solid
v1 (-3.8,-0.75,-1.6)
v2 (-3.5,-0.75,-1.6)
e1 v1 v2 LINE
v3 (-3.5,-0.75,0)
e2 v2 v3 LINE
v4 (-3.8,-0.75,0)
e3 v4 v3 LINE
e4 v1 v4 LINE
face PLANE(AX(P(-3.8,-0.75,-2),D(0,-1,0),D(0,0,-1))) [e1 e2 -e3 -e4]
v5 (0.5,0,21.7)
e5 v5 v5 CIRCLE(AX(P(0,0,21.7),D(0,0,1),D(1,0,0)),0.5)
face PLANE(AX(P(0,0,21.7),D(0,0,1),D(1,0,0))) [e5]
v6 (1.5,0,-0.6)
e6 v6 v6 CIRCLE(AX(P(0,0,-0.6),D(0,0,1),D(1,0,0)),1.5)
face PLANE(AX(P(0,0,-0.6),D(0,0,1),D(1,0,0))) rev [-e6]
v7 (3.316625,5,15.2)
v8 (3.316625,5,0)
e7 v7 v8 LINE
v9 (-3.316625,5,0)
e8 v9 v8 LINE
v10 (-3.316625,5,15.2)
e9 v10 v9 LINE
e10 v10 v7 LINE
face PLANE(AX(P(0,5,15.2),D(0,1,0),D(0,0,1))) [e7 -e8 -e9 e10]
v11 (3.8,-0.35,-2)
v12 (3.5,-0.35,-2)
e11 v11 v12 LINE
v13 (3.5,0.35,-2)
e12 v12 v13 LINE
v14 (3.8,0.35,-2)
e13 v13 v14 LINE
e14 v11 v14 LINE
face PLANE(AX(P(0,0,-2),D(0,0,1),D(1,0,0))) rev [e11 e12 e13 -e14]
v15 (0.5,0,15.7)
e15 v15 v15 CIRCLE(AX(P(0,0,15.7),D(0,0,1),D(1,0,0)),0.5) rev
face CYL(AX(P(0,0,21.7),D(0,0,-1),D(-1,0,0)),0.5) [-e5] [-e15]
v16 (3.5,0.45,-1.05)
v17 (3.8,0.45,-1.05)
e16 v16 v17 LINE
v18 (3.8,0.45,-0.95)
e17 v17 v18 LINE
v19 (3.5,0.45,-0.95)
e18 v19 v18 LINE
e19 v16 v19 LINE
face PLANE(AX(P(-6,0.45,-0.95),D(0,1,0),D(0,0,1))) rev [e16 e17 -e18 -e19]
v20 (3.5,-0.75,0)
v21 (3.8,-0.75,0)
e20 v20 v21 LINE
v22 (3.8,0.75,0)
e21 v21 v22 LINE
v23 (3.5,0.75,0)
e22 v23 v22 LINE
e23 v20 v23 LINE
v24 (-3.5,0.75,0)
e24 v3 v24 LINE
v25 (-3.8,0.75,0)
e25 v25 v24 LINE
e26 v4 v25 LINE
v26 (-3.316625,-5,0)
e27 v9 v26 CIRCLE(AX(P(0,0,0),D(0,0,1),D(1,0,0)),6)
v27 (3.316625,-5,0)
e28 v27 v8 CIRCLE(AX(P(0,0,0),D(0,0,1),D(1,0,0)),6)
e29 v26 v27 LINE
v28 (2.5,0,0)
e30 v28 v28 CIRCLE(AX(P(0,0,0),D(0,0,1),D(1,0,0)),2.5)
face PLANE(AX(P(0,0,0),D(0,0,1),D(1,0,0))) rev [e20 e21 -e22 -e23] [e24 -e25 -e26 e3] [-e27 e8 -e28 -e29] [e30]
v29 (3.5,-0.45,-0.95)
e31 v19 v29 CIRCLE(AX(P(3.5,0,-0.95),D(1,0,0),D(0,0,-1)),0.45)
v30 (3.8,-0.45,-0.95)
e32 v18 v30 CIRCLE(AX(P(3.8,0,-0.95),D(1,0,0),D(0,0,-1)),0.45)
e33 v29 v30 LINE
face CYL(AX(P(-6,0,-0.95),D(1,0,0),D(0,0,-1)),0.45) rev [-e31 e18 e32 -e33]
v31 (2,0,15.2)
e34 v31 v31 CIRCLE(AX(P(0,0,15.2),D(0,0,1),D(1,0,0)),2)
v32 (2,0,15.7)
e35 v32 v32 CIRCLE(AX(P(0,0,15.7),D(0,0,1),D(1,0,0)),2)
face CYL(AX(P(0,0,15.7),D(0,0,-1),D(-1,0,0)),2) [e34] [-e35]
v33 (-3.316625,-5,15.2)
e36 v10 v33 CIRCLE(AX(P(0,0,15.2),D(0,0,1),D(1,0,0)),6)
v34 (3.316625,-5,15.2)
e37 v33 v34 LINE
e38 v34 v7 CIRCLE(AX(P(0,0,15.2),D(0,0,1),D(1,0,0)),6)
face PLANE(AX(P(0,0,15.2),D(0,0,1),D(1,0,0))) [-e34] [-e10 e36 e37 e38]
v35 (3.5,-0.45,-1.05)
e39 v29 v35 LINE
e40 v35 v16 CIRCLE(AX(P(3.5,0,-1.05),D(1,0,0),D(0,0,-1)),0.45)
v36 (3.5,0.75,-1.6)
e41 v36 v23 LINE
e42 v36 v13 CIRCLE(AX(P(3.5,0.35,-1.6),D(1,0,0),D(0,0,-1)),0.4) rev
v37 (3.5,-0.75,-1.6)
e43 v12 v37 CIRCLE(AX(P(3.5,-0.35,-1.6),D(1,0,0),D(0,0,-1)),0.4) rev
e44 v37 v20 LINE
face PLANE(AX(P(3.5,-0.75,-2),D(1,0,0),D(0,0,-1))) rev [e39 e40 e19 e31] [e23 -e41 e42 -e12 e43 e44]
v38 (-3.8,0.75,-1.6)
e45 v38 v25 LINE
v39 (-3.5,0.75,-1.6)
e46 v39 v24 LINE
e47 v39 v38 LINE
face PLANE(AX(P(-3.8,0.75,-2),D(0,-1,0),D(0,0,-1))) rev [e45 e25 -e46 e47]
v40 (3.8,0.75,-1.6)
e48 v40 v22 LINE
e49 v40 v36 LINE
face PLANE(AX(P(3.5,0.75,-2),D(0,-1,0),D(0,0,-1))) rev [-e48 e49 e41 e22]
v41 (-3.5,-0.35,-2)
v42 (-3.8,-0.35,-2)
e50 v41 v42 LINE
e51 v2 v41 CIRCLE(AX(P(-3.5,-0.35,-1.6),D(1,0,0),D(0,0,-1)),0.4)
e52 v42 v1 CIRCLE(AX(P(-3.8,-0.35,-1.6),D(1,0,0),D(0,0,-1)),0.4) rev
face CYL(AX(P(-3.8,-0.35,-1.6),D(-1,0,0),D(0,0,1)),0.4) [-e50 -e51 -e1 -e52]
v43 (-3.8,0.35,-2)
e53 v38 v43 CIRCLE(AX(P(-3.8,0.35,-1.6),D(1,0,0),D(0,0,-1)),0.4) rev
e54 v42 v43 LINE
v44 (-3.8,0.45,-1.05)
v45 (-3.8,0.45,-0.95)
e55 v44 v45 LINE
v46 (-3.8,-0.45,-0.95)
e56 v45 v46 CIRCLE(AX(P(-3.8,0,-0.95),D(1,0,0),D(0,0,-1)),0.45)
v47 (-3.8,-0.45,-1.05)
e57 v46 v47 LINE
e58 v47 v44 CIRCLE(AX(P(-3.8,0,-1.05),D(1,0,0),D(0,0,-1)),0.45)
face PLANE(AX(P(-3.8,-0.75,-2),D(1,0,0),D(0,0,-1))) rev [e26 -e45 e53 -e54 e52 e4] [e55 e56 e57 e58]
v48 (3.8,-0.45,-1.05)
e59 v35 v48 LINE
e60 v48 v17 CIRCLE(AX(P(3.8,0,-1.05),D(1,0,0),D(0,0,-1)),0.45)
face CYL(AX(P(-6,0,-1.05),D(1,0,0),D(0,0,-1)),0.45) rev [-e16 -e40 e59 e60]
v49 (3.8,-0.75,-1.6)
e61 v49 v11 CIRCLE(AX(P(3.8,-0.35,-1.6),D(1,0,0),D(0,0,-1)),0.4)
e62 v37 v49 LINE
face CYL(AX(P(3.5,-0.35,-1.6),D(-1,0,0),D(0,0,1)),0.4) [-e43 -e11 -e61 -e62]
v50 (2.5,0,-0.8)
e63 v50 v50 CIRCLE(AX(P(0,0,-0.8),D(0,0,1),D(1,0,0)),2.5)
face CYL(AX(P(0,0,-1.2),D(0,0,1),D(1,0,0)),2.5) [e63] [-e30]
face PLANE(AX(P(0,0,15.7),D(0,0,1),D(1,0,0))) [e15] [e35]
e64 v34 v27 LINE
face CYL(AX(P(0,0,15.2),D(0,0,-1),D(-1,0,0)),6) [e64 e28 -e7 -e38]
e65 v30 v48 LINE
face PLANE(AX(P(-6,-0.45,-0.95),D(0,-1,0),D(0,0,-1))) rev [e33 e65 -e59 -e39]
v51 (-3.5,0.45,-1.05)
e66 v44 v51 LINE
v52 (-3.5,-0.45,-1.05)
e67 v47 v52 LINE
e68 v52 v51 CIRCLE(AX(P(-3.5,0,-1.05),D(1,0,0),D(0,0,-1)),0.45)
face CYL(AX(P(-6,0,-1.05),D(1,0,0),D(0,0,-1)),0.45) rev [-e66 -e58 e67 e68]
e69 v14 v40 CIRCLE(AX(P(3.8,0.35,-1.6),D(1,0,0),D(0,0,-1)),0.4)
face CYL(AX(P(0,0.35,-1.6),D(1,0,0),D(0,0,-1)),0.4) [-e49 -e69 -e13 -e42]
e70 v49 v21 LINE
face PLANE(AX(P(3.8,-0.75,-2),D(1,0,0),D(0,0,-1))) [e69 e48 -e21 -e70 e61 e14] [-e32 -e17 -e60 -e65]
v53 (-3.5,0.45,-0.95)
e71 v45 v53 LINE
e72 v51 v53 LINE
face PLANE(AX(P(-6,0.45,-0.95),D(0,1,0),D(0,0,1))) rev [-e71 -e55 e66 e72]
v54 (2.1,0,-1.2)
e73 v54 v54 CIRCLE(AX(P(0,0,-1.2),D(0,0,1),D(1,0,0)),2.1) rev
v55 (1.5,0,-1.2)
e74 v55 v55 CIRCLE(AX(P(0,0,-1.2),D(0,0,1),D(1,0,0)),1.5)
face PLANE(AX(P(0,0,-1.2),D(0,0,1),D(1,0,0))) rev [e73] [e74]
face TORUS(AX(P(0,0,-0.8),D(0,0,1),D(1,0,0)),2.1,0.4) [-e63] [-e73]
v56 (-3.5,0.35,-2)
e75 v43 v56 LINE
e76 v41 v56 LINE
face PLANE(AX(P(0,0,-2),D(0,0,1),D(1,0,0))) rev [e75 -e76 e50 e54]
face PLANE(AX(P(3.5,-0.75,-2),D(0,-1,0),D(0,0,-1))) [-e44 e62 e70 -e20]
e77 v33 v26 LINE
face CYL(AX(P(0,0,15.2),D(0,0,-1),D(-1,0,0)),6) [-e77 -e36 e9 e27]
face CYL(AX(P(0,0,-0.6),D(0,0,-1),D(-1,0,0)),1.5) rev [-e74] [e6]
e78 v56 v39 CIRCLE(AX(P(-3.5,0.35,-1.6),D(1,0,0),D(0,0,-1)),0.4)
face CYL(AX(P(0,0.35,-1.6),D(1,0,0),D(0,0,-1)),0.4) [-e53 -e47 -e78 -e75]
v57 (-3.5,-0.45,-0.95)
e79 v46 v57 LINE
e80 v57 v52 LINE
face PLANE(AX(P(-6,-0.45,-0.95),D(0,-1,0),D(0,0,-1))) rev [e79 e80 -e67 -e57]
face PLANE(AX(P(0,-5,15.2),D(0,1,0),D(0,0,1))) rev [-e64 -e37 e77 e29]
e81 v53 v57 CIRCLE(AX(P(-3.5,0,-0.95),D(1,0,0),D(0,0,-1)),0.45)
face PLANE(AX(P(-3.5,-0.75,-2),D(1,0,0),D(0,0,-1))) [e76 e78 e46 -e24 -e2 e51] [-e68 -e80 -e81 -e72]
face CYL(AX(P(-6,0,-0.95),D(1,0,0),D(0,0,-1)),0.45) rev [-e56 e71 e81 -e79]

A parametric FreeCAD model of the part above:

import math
import FreeCAD as App
import Part
import Sketcher

V = App.Vector


def edges_at(feature, points):
    """Names of the edges that pass closest to the given points."""
    edges = feature.Shape.Edges
    near = lambda p: min(range(len(edges)), key=lambda i: edges[i].distToShape(Part.Vertex(*p))[0])
    return sorted({f"Edge{near(p) + 1}" for p in points})


def add_polygon(sketch, points):
    """Adds a closed chain of lines whose ends are joined by coincident constraints."""
    first, n = sketch.GeometryCount, len(points)
    for a, b in zip(points, points[1:] + points[:1]):
        sketch.addGeometry(Part.LineSegment(App.Vector(*a, 0), App.Vector(*b, 0)), False)
    for i in range(n):
        sketch.addConstraint(Sketcher.Constraint("Coincident", first + i, 2, first + (i + 1) % n, 1))

doc = App.newDocument("Part")
body = doc.addObject("PartDesign::Body", "Body")

sketch1 = doc.addObject("Sketcher::SketchObject", "Sketch")
body.addObject(sketch1)
sketch1.AttachmentSupport = (doc.XY_Plane, [""])
sketch1.MapMode = "FlatFace"
sketch1.addGeometry([
    Part.ArcOfCircle(Part.Circle(V(0, 0, 0), V(0, 0, 1), 6), math.radians(180), math.radians(236)),
    Part.LineSegment(V(-3, -5, 0), V(3, -5, 0)),
    Part.ArcOfCircle(Part.Circle(V(0, 0, 0), V(0, 0, 1), 6), math.radians(-56), math.radians(0)),
    Part.ArcOfCircle(Part.Circle(V(0, 0, 0), V(0, 0, 1), 6), math.radians(0), math.radians(56)),
    Part.LineSegment(V(3, 5, 0), V(-3, 5, 0)),
    Part.ArcOfCircle(Part.Circle(V(0, 0, 0), V(0, 0, 1), 6), math.radians(124), math.radians(180)),
], False)
sketch1.addConstraint([
    Sketcher.Constraint("Coincident", 0, 2, 1, 1),
    Sketcher.Constraint("Coincident", 1, 2, 2, 1),
    Sketcher.Constraint("Tangent", 2, 2, 3, 1),
    Sketcher.Constraint("Coincident", 3, 2, 4, 1),
    Sketcher.Constraint("Coincident", 4, 2, 5, 1),
    Sketcher.Constraint("Tangent", 5, 2, 0, 1),
    Sketcher.Constraint("Horizontal", 1),
    Sketcher.Constraint("Horizontal", 4),
    Sketcher.Constraint("Coincident", 0, 3, -1, 1),
    Sketcher.Constraint("Coincident", 2, 3, -1, 1),
    Sketcher.Constraint("Equal", 0, 2),
    Sketcher.Constraint("Equal", 2, 3),
    Sketcher.Constraint("Equal", 3, 5),
    Sketcher.Constraint("PointOnObject", 2, 2, -1),
    Sketcher.Constraint("PointOnObject", 5, 2, -1),
    Sketcher.Constraint("Vertical", 1, 2, 3, 2),
    Sketcher.Constraint("Radius", 0, 6.0),
    Sketcher.Constraint("DistanceY", 0, 2, -1, 1, 5.0),
])
pad1 = doc.addObject("PartDesign::Pad", "Pad")
body.addObject(pad1)
pad1.Profile = sketch1
pad1.Length = 15.2

sketch2 = doc.addObject("Sketcher::SketchObject", "Sketch001")
body.addObject(sketch2)
sketch2.AttachmentSupport = (doc.XY_Plane, [""])
sketch2.MapMode = "FlatFace"
add_polygon(sketch2, [(3.5, 0.75), (3.5, -0.75), (3.8, -0.75), (3.8, 0.75)])
add_polygon(sketch2, [(-3.8, 0.75), (-3.8, -0.75), (-3.5, -0.75), (-3.5, 0.75)])
sketch2.addConstraint([
    Sketcher.Constraint("Vertical", 0),
    Sketcher.Constraint("Horizontal", 1),
    Sketcher.Constraint("Vertical", 2),
    Sketcher.Constraint("Horizontal", 3),
    Sketcher.Constraint("Vertical", 4),
    Sketcher.Constraint("Horizontal", 5),
    Sketcher.Constraint("Vertical", 6),
    Sketcher.Constraint("Horizontal", 7),
    Sketcher.Constraint("Symmetric", 2, 2, 4, 2, -1, 1),
    Sketcher.Constraint("Symmetric", 0, 2, 6, 2, -1, 1),
    Sketcher.Constraint("Horizontal", 1, 2, 4, 2),
    Sketcher.Constraint("DistanceX", 1, 1, 1, 2, 0.3),
    Sketcher.Constraint("DistanceY", 0, 2, 0, 1, 1.5),
    Sketcher.Constraint("DistanceX", 5, 2, 0, 2, 7.0),
])
pad2 = doc.addObject("PartDesign::Pad", "Pad001")
body.addObject(pad2)
pad2.Profile = sketch2
pad2.Length = 2
pad2.Reversed = True

sketch3 = doc.addObject("Sketcher::SketchObject", "Sketch002")
body.addObject(sketch3)
sketch3.AttachmentSupport = (doc.YZ_Plane, [""])
sketch3.MapMode = "FlatFace"
sketch3.AttachmentOffset = App.Placement(V(0, 0, 3.8), App.Rotation())
sketch3.addGeometry([
    Part.LineSegment(V(0.45, -1.05, 0), V(0.45, -0.95, 0)),
    Part.ArcOfCircle(Part.Circle(V(0, -0.95, 0), V(0, 0, 1), 0.45), math.radians(0), math.radians(180)),
    Part.LineSegment(V(-0.45, -0.95, 0), V(-0.45, -1.05, 0)),
    Part.ArcOfCircle(Part.Circle(V(0, -1.05, 0), V(0, 0, 1), 0.45), math.radians(180), math.radians(360)),
], False)
sketch3.addConstraint([
    Sketcher.Constraint("Tangent", 0, 2, 1, 1),
    Sketcher.Constraint("Tangent", 1, 2, 2, 1),
    Sketcher.Constraint("Tangent", 2, 2, 3, 1),
    Sketcher.Constraint("Tangent", 3, 2, 0, 1),
    Sketcher.Constraint("Vertical", 0),
    Sketcher.Constraint("Vertical", 2),
    Sketcher.Constraint("PointOnObject", 1, 3, -2),
    Sketcher.Constraint("Radius", 1, 0.45),
    Sketcher.Constraint("DistanceY", 0, 1, 0, 2, 0.1),
    Sketcher.Constraint("DistanceY", 1, 3, -1, 1, 0.95),
])
pocket1 = doc.addObject("PartDesign::Pocket", "Pocket")
body.addObject(pocket1)
pocket1.Profile = sketch3
pocket1.Type = "ThroughAll"
doc.recompute()

fillet = doc.addObject("PartDesign::Fillet", "Fillet")
body.addObject(fillet)
fillet.Base = (pocket1, edges_at(pocket1, [
    (3.65, -0.75, -2),
    (3.65, 0.75, -2),
    (-3.65, -0.75, -2),
    (-3.65, 0.75, -2),
]))
fillet.Radius = 0.4

sketch4 = doc.addObject("Sketcher::SketchObject", "Sketch003")
body.addObject(sketch4)
sketch4.AttachmentSupport = (doc.XY_Plane, [""])
sketch4.MapMode = "FlatFace"
sketch4.addGeometry(Part.Circle(V(0, 0, 0), V(0, 0, 1), 2.5), False)
sketch4.addConstraint([
    Sketcher.Constraint("Coincident", 0, 3, -1, 1),
    Sketcher.Constraint("Diameter", 0, 5.0),
])
pad3 = doc.addObject("PartDesign::Pad", "Pad002")
body.addObject(pad3)
pad3.Profile = sketch4
pad3.Length = 1.2
pad3.Reversed = True

sketch5 = doc.addObject("Sketcher::SketchObject", "Sketch004")
body.addObject(sketch5)
sketch5.AttachmentSupport = (doc.XY_Plane, [""])
sketch5.MapMode = "FlatFace"
sketch5.AttachmentOffset = App.Placement(V(0, 0, -1.2), App.Rotation())
sketch5.addGeometry(Part.Circle(V(0, 0, 0), V(0, 0, 1), 1.5), False)
sketch5.addConstraint([
    Sketcher.Constraint("Coincident", 0, 3, -1, 1),
    Sketcher.Constraint("Diameter", 0, 3.0),
])
pocket2 = doc.addObject("PartDesign::Pocket", "Pocket001")
body.addObject(pocket2)
pocket2.Profile = sketch5
pocket2.Length = 0.6
pocket2.Reversed = True
doc.recompute()

fillet2 = doc.addObject("PartDesign::Fillet", "Fillet001")
body.addObject(fillet2)
fillet2.Base = (pocket2, edges_at(pocket2, [(-2.5, 0, -1.2)]))
fillet2.Radius = 0.4

sketch6 = doc.addObject("Sketcher::SketchObject", "Sketch005")
body.addObject(sketch6)
sketch6.AttachmentSupport = (doc.XY_Plane, [""])
sketch6.MapMode = "FlatFace"
sketch6.AttachmentOffset = App.Placement(V(0, 0, 15.2), App.Rotation())
sketch6.addGeometry(Part.Circle(V(0, 0, 0), V(0, 0, 1), 2), False)
sketch6.addConstraint([
    Sketcher.Constraint("Coincident", 0, 3, -1, 1),
    Sketcher.Constraint("Diameter", 0, 4.0),
])
pad4 = doc.addObject("PartDesign::Pad", "Pad003")
body.addObject(pad4)
pad4.Profile = sketch6
pad4.Length = 0.5

sketch7 = doc.addObject("Sketcher::SketchObject", "Sketch006")
body.addObject(sketch7)
sketch7.AttachmentSupport = (doc.XY_Plane, [""])
sketch7.MapMode = "FlatFace"
sketch7.AttachmentOffset = App.Placement(V(0, 0, 15.2), App.Rotation())
sketch7.addGeometry(Part.Circle(V(0, 0, 0), V(0, 0, 1), 0.5), False)
sketch7.addConstraint([
    Sketcher.Constraint("Coincident", 0, 3, -1, 1),
    Sketcher.Constraint("Diameter", 0, 1.0),
])
pad5 = doc.addObject("PartDesign::Pad", "Pad004")
body.addObject(pad5)
pad5.Profile = sketch7
pad5.Length = 6.5

doc.recompute()
